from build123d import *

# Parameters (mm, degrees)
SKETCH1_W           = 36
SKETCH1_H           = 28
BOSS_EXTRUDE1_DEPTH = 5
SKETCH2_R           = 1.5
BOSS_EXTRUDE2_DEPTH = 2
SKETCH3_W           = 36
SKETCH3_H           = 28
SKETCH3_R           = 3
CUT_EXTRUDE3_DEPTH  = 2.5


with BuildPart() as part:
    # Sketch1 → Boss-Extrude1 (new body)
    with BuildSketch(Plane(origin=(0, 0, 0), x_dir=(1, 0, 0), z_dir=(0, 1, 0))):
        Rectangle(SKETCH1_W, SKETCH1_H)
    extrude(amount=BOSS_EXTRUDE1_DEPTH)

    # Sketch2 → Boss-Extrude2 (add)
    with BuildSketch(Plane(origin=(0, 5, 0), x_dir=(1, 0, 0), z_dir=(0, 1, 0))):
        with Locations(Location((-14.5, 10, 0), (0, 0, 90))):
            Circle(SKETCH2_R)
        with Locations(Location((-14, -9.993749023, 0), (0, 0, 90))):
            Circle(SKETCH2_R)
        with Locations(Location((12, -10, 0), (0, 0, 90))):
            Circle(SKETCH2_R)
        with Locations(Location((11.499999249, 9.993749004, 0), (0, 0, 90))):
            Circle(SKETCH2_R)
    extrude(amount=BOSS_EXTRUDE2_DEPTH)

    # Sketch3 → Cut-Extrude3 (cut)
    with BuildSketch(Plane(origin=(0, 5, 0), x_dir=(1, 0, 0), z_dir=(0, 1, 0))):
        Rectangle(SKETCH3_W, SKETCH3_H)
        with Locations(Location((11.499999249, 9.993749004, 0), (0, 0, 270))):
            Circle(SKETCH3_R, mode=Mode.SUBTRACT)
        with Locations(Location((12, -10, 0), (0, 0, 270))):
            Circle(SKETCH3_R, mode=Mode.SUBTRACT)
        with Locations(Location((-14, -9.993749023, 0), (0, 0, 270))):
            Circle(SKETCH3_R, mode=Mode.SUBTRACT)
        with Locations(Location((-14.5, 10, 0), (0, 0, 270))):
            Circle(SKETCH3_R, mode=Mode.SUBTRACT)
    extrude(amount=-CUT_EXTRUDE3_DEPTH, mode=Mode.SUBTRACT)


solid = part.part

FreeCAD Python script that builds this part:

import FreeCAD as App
import Part
import Sketcher
from FreeCAD import Vector

doc = App.newDocument("Part")
body = doc.addObject("PartDesign::Body", "Body")

# Sketch on XZ plane
sketch1 = body.newObject("Sketcher::SketchObject", "Sketch")
sketch1.AttachmentSupport = (doc.getObject("XZ_Plane"), [""])
sketch1.MapMode = "FlatFace"
sketch1.addGeometry(Part.LineSegment(Vector(-18, -14, 0), Vector(-18, 14, 0)), False)
sketch1.addGeometry(Part.LineSegment(Vector(-18, 14, 0), Vector(18, 14, 0)), False)
sketch1.addGeometry(Part.LineSegment(Vector(18, 14, 0), Vector(18, -14, 0)), False)
sketch1.addGeometry(Part.LineSegment(Vector(18, -14, 0), Vector(-18, -14, 0)), False)
sketch1.addConstraint(Sketcher.Constraint("Coincident", 0, 2, 1, 1))
sketch1.addConstraint(Sketcher.Constraint("Coincident", 1, 2, 2, 1))
sketch1.addConstraint(Sketcher.Constraint("Coincident", 2, 2, 3, 1))
sketch1.addConstraint(Sketcher.Constraint("Coincident", 3, 2, 0, 1))
sketch1.addConstraint(Sketcher.Constraint("Vertical", 0))
sketch1.addConstraint(Sketcher.Constraint("Horizontal", 1))
sketch1.addConstraint(Sketcher.Constraint("Vertical", 2))
sketch1.addConstraint(Sketcher.Constraint("Horizontal", 3))
sketch1.addConstraint(Sketcher.Constraint("Symmetric", 0, 2, 2, 2, -1, 1))
sketch1.addConstraint(Sketcher.Constraint("DistanceX", 1, 1, 1, 2, 36.0))
sketch1.addConstraint(Sketcher.Constraint("DistanceY", 0, 1, 0, 2, 28.0))
pad1 = body.newObject("PartDesign::Pad", "Pad")
pad1.Profile = sketch1
pad1.Length = 5
pad1.Reversed = True

# Sketch on XZ plane
sketch2 = body.newObject("Sketcher::SketchObject", "Sketch001")
sketch2.AttachmentSupport = (doc.getObject("XZ_Plane"), [""])
sketch2.MapMode = "FlatFace"
sketch2.AttachmentOffset = App.Placement(Vector(0, 0, -5), App.Rotation())
sketch2.addGeometry(Part.Circle(Vector(-14.5, -10, 0), Vector(0, 0, 1), 1.5), False)
sketch2.addGeometry(Part.Circle(Vector(-14, 9.993749, 0), Vector(0, 0, 1), 1.5), False)
sketch2.addGeometry(Part.Circle(Vector(12, 10, 0), Vector(0, 0, 1), 1.5), False)
sketch2.addGeometry(Part.Circle(Vector(11.499999, -9.993749, 0), Vector(0, 0, 1), 1.5), False)
sketch2.addConstraint(Sketcher.Constraint("Equal", 0, 1))
sketch2.addConstraint(Sketcher.Constraint("Equal", 1, 2))
sketch2.addConstraint(Sketcher.Constraint("Equal", 2, 3))
sketch2.addConstraint(Sketcher.Constraint("Diameter", 0, 3.0))
sketch2.addConstraint(Sketcher.Constraint("DistanceY", 0, 3, -1, 1, 10.0))
sketch2.addConstraint(Sketcher.Constraint("DistanceX", 1, 3, -1, 1, 14.0))
sketch2.addConstraint(Sketcher.Constraint("DistanceX", -1, 1, 2, 3, 12.0))
sketch2.addConstraint(Sketcher.Constraint("DistanceY", -1, 1, 2, 3, 10.0))
sketch2.addConstraint(Sketcher.Constraint("DistanceX", 0, 3, 3, 3, 25.999999))
sketch2.addConstraint(Sketcher.Constraint("DistanceX", 0, 3, -1, 1, 14.5))
sketch2.addConstraint(Sketcher.Constraint("DistanceY", 3, 3, 1, 3, 19.987498))
sketch2.addConstraint(Sketcher.Constraint("DistanceY", -1, 1, 1, 3, 9.993749))
pad2 = body.newObject("PartDesign::Pad", "Pad001")
pad2.Profile = sketch2
pad2.Length = 2
pad2.Reversed = True

# Sketch on XZ plane
sketch3 = body.newObject("Sketcher::SketchObject", "Sketch002")
sketch3.AttachmentSupport = (doc.getObject("XZ_Plane"), [""])
sketch3.MapMode = "FlatFace"
sketch3.AttachmentOffset = App.Placement(Vector(0, 0, -5), App.Rotation())
sketch3.addGeometry(Part.LineSegment(Vector(-18, -14, 0), Vector(-18, 14, 0)), False)
sketch3.addGeometry(Part.LineSegment(Vector(-18, 14, 0), Vector(18, 14, 0)), False)
sketch3.addGeometry(Part.LineSegment(Vector(18, 14, 0), Vector(18, -14, 0)), False)
sketch3.addGeometry(Part.LineSegment(Vector(18, -14, 0), Vector(-18, -14, 0)), False)
sketch3.addGeometry(Part.Circle(Vector(-14, 9.993749, 0), Vector(0, 0, 1), 3), False)
sketch3.addGeometry(Part.Circle(Vector(12, 10, 0), Vector(0, 0, 1), 3), False)
sketch3.addGeometry(Part.Circle(Vector(-14.5, -10, 0), Vector(0, 0, 1), 3), False)
sketch3.addGeometry(Part.Circle(Vector(11.499999, -9.993749, 0), Vector(0, 0, 1), 3), False)
sketch3.addConstraint(Sketcher.Constraint("Coincident", 0, 2, 1, 1))
sketch3.addConstraint(Sketcher.Constraint("Coincident", 1, 2, 2, 1))
sketch3.addConstraint(Sketcher.Constraint("Coincident", 2, 2, 3, 1))
sketch3.addConstraint(Sketcher.Constraint("Coincident", 3, 2, 0, 1))
sketch3.addConstraint(Sketcher.Constraint("Vertical", 0))
sketch3.addConstraint(Sketcher.Constraint("Horizontal", 1))
sketch3.addConstraint(Sketcher.Constraint("Vertical", 2))
sketch3.addConstraint(Sketcher.Constraint("Horizontal", 3))
sketch3.addConstraint(Sketcher.Constraint("Equal", 4, 5))
sketch3.addConstraint(Sketcher.Constraint("Equal", 5, 6))
sketch3.addConstraint(Sketcher.Constraint("Equal", 6, 7))
sketch3.addConstraint(Sketcher.Constraint("Symmetric", 0, 2, 2, 2, -1, 1))
sketch3.addConstraint(Sketcher.Constraint("Diameter", 4, 6.0))
sketch3.addConstraint(Sketcher.Constraint("DistanceX", 1, 1, 1, 2, 36.0))
sketch3.addConstraint(Sketcher.Constraint("DistanceY", 0, 1, 0, 2, 28.0))
sketch3.addConstraint(Sketcher.Constraint("DistanceX", 4, 3, -1, 1, 14.0))
sketch3.addConstraint(Sketcher.Constraint("DistanceX", -1, 1, 5, 3, 12.0))
sketch3.addConstraint(Sketcher.Constraint("DistanceY", -1, 1, 5, 3, 10.0))
sketch3.addConstraint(Sketcher.Constraint("DistanceY", 6, 3, -1, 1, 10.0))
sketch3.addConstraint(Sketcher.Constraint("DistanceX", 6, 3, 7, 3, 25.999999))
sketch3.addConstraint(Sketcher.Constraint("DistanceX", 6, 3, -1, 1, 14.5))
sketch3.addConstraint(Sketcher.Constraint("DistanceY", 7, 3, 4, 3, 19.987498))
sketch3.addConstraint(Sketcher.Constraint("DistanceY", -1, 1, 4, 3, 9.993749))
pocket1 = body.newObject("PartDesign::Pocket", "Pocket")
pocket1.Profile = sketch3
pocket1.Length = 2.5
pocket1.Reversed = True

doc.recompute()
